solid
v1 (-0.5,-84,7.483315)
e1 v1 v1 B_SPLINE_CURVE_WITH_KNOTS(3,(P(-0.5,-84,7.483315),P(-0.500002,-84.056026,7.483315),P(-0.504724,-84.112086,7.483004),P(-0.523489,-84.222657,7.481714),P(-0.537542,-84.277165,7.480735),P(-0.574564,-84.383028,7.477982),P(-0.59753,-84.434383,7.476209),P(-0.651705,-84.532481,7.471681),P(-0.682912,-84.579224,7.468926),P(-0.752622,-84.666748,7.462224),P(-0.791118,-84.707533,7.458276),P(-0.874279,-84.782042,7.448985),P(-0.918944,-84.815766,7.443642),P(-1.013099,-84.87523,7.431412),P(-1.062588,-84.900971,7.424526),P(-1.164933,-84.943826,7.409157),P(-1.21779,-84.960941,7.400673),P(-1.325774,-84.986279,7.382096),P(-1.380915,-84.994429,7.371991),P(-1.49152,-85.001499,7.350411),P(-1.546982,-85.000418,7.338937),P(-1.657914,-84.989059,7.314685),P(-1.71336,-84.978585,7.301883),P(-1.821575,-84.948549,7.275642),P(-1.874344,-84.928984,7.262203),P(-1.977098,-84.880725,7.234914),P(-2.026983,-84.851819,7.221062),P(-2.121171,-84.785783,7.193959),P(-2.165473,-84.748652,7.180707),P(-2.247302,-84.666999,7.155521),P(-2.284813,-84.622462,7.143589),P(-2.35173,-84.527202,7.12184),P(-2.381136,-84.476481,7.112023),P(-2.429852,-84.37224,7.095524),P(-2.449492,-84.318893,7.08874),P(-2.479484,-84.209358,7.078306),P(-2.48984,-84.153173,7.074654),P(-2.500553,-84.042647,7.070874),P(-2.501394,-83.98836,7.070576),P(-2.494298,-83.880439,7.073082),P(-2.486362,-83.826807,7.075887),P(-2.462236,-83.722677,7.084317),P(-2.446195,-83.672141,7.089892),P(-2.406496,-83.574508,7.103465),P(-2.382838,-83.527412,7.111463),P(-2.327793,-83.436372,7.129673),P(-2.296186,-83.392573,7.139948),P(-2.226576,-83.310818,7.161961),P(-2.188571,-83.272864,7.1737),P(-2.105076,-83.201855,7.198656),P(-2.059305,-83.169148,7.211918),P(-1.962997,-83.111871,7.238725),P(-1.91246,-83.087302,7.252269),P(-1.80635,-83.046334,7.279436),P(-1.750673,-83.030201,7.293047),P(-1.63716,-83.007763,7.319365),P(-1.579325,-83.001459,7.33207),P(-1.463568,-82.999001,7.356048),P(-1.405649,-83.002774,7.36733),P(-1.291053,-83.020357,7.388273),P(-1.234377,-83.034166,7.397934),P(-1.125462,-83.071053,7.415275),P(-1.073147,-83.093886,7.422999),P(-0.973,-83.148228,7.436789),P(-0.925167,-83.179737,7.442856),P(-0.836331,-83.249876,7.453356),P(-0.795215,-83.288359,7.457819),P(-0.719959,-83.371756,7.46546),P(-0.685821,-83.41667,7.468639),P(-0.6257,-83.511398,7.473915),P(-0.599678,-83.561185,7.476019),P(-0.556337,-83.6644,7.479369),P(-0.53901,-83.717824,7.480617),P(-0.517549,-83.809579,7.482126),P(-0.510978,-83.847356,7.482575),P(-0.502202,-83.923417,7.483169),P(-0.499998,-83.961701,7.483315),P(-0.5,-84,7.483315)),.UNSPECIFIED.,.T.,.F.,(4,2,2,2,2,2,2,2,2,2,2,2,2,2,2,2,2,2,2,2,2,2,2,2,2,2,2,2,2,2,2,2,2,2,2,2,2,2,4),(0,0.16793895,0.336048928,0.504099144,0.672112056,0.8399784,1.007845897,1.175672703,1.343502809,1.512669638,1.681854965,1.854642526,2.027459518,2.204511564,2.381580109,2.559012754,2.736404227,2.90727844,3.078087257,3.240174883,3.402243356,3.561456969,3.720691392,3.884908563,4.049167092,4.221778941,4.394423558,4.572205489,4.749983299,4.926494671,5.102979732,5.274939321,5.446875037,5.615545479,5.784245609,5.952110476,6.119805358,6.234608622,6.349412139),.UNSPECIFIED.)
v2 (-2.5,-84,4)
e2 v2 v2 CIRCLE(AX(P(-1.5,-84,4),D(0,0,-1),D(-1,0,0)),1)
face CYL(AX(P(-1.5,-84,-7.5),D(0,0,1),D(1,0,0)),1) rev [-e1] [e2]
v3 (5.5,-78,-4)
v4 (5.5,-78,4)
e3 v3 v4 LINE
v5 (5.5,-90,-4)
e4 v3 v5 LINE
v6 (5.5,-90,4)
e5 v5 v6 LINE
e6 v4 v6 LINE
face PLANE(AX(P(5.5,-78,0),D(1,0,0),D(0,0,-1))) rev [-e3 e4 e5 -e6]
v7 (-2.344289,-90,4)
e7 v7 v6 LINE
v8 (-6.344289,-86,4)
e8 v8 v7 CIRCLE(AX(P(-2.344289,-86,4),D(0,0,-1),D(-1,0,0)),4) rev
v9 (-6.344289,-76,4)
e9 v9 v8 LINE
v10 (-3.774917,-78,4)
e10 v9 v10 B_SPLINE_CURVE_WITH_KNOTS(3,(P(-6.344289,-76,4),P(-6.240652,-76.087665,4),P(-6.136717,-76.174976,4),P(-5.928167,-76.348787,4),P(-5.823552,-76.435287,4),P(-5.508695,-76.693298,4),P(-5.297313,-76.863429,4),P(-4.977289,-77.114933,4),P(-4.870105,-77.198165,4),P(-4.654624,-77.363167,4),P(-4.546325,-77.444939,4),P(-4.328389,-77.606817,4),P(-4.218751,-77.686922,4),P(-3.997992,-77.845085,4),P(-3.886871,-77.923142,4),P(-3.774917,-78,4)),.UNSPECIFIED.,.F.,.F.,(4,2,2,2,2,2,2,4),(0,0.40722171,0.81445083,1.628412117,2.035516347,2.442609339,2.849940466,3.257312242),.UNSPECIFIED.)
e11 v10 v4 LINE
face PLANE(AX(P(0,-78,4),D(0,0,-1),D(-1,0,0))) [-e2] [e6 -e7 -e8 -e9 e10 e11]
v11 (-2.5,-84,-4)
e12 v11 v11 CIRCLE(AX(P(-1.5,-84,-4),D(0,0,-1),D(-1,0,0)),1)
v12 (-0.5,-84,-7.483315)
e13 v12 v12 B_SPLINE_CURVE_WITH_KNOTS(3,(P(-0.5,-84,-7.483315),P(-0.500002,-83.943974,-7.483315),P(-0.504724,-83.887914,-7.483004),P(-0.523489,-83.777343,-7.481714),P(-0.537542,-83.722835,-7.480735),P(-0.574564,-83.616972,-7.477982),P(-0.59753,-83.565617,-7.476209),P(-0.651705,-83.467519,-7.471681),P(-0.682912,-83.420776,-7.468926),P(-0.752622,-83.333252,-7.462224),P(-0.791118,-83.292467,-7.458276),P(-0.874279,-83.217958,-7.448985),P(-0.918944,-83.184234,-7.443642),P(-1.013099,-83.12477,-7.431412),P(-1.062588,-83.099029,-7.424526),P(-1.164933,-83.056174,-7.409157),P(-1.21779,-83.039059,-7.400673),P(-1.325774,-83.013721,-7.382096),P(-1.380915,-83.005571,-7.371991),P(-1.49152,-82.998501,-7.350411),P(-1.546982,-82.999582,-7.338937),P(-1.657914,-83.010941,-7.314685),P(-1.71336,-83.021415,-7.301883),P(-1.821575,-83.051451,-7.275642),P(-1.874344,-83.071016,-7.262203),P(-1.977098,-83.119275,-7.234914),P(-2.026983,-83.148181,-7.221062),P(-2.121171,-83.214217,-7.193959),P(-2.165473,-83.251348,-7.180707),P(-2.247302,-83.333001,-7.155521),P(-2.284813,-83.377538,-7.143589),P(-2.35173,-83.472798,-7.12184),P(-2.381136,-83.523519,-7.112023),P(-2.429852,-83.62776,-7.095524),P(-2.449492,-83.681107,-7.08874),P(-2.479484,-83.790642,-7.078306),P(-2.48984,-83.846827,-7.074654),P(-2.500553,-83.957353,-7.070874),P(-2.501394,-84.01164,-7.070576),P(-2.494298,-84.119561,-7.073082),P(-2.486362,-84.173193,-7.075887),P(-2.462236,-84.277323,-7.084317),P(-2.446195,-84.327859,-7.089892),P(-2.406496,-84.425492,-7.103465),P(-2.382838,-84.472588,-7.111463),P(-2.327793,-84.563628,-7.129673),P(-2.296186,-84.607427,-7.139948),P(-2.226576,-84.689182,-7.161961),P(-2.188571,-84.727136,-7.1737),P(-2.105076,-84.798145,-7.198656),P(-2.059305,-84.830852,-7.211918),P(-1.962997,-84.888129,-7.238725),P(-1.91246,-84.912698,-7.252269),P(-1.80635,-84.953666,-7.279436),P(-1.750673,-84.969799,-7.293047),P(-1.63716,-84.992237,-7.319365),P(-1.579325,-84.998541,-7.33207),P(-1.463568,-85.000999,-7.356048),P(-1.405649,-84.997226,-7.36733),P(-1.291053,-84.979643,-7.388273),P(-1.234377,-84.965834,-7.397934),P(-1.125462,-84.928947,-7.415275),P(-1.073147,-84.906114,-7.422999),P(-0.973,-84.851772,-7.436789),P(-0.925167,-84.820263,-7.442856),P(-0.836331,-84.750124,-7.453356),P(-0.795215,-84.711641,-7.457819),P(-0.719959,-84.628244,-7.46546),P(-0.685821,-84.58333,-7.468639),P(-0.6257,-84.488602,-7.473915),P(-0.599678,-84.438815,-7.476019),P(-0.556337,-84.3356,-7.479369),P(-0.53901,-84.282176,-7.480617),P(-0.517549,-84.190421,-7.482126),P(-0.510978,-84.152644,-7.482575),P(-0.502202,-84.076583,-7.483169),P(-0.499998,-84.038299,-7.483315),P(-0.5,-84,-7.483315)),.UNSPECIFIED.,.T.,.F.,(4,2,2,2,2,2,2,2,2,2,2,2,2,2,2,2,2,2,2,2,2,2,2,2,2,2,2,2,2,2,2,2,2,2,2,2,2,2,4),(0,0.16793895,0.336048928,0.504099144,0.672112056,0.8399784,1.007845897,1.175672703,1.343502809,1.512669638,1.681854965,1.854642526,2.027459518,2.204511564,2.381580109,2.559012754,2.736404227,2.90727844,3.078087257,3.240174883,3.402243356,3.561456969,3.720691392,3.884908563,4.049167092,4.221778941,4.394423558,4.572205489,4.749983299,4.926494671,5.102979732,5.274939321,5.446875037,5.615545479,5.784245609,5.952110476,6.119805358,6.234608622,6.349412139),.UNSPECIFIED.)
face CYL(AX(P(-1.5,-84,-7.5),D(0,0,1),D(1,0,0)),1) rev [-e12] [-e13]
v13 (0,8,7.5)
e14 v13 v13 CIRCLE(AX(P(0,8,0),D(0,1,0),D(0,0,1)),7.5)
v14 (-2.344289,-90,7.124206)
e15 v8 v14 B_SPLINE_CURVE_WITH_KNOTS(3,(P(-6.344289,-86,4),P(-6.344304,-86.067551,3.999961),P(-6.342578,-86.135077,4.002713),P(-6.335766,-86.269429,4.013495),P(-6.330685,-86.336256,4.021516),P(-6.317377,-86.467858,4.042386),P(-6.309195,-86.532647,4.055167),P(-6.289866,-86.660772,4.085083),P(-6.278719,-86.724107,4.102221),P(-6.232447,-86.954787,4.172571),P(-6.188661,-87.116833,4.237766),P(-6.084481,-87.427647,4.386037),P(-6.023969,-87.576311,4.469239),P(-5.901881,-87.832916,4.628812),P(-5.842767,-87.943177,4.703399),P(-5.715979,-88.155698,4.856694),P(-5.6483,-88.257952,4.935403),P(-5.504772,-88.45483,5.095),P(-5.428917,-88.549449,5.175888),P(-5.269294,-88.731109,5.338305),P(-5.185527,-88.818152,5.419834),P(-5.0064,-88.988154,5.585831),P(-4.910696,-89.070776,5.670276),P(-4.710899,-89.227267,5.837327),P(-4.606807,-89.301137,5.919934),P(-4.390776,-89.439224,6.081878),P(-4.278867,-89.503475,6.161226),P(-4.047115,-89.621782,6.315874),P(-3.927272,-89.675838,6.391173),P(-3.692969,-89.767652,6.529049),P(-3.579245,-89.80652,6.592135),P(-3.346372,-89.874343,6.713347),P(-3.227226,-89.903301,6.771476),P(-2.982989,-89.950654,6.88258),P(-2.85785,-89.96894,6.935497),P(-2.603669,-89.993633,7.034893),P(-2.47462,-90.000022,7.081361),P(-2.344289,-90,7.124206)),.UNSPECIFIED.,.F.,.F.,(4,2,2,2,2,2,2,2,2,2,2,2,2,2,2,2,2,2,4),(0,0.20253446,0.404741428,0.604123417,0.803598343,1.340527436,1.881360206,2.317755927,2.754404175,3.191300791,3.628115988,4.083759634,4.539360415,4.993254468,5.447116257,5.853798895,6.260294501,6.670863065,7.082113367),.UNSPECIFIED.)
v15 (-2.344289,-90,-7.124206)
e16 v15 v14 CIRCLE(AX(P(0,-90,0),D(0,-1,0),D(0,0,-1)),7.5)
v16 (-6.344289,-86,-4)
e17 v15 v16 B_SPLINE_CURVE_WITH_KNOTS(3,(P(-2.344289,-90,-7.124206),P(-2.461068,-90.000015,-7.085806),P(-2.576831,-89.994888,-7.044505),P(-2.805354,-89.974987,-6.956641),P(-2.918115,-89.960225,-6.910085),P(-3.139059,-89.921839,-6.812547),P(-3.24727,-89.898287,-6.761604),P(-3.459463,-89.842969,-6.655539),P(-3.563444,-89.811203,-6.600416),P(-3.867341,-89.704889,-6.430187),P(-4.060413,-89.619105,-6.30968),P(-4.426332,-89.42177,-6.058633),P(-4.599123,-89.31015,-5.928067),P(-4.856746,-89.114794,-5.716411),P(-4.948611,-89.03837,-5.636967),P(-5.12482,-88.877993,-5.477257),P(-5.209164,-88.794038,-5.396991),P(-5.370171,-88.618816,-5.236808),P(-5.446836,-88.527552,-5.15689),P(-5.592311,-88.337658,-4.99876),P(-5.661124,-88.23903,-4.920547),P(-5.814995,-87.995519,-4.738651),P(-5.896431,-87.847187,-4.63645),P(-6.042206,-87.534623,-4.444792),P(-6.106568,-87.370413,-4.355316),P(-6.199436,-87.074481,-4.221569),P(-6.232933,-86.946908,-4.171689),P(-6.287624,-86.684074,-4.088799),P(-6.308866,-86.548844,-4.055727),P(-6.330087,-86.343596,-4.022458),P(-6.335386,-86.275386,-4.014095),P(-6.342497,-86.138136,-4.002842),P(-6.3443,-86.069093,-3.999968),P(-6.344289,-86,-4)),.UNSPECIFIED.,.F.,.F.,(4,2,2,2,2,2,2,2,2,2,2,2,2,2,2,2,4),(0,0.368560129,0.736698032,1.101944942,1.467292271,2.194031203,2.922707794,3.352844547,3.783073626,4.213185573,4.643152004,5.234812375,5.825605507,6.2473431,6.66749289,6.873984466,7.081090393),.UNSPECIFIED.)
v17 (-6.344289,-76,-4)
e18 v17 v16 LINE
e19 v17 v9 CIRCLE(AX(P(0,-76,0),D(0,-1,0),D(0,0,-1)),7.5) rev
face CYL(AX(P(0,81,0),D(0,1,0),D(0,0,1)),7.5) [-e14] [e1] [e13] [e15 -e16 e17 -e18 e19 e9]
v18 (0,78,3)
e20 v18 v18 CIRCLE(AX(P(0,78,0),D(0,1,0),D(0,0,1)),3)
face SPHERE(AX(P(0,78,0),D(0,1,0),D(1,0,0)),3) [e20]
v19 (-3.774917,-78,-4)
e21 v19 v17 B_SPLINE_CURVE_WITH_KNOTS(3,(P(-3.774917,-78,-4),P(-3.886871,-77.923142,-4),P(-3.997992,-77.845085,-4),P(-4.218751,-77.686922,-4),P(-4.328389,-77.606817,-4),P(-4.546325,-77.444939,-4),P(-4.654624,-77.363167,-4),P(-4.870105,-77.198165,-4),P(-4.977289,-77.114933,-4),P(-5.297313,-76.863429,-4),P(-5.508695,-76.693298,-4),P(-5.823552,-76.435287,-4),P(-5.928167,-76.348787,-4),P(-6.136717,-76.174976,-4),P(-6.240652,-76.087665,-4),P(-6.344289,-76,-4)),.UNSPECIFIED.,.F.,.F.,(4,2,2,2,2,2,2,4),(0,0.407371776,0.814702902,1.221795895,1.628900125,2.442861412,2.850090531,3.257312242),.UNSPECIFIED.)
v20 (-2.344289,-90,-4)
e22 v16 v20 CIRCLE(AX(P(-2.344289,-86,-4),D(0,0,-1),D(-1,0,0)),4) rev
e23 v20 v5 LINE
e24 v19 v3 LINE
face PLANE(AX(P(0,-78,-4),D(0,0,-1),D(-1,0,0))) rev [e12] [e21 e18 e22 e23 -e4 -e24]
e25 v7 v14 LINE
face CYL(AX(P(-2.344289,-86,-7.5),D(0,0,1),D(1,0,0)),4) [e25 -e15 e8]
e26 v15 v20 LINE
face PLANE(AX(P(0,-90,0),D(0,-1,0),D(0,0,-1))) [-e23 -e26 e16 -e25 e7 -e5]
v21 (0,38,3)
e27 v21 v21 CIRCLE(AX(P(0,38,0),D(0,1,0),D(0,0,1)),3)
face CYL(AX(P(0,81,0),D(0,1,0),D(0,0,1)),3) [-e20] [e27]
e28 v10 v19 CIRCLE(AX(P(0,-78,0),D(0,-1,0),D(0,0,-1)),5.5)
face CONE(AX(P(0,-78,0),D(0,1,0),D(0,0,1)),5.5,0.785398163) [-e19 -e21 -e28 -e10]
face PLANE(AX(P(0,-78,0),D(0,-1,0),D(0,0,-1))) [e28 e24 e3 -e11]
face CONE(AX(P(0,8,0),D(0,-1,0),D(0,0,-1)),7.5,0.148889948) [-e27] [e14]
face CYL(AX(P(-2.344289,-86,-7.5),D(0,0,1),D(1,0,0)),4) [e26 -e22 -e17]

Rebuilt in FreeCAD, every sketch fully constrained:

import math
import FreeCAD as App
import Part
import Sketcher
Q = App.Units.Quantity


def edges_at(feature, points):
    """Names of the edges that pass closest to the given points."""
    edges = feature.Shape.Edges
    near = lambda p: min(range(len(edges)), key=lambda i: edges[i].distToShape(Part.Vertex(*p))[0])
    return sorted({f"Edge{near(p) + 1}" for p in points})

doc = App.newDocument("Part")
body = doc.addObject("PartDesign::Body", "Body")

# Sketch on XY plane
sketch1 = body.newObject("Sketcher::SketchObject", "Sketch")
sketch1.AttachmentSupport = (doc.getObject("XY_Plane"), [""])
sketch1.MapMode = "FlatFace"
sketch1.addGeometry([
    Part.LineSegment(App.Vector(7.5, -72, 0), App.Vector(7.5, 8, 0)),  # 0
    Part.LineSegment(App.Vector(7.5, 8, 0), App.Vector(3, 38, 0)),  # 1
    Part.LineSegment(App.Vector(3, 38, 0), App.Vector(3, 78, 0)),  # 2
    Part.ArcOfCircle(Part.Circle(App.Vector(0, 78, 0), App.Vector(0, 0, 1), 3), math.radians(0), math.radians(90)),  # 3
    Part.LineSegment(App.Vector(0, 81, 0), App.Vector(0, -72, 0)),  # 4
    Part.LineSegment(App.Vector(0, -72, 0), App.Vector(7.5, -72, 0)),  # 5
], False)
sketch1.addConstraint([
    Sketcher.Constraint("Coincident", 0, 2, 1, 1),
    Sketcher.Constraint("Coincident", 1, 2, 2, 1),
    Sketcher.Constraint("Tangent", 2, 2, 3, 1),
    Sketcher.Constraint("Coincident", 3, 2, 4, 1),
    Sketcher.Constraint("Coincident", 4, 2, 5, 1),
    Sketcher.Constraint("Coincident", 5, 2, 0, 1),
    Sketcher.Constraint("Vertical", 0),
    Sketcher.Constraint("Vertical", 2),
    Sketcher.Constraint("Vertical", 4),
    Sketcher.Constraint("Horizontal", 5),
    Sketcher.Constraint("PointOnObject", 3, 3, -2),
    Sketcher.Constraint("PointOnObject", 3, 2, -2),
    Sketcher.Constraint("Radius", 3, Q("3 mm")),
    Sketcher.Constraint("DistanceY", 0, 1, 0, 2, Q("80 mm")),
    Sketcher.Constraint("DistanceY", 2, 1, 2, 2, Q("40 mm")),
    Sketcher.Constraint("DistanceY", 4, 2, 4, 1, Q("153 mm")),
    Sketcher.Constraint("DistanceX", 5, 1, 5, 2, Q("7.5 mm")),
    Sketcher.Constraint("DistanceY", -1, 1, 3, 3, Q("78 mm")),
])
revolution = body.newObject("PartDesign::Revolution", "Revolution")
revolution.Profile = sketch1
revolution.ReferenceAxis = (sketch1, ["V_Axis"])
revolution.Angle = 360

# Sketch on XZ plane
sketch2 = body.newObject("Sketcher::SketchObject", "Sketch001")
sketch2.AttachmentSupport = (doc.getObject("XZ_Plane"), [""])
sketch2.MapMode = "FlatFace"
sketch2.AttachmentOffset = App.Placement(App.Vector(0, 0, 72), App.Rotation())
sketch2.addGeometry(Part.Circle(App.Vector(0, 0, 0), App.Vector(0, 0, 1), 8), False)
sketch2.addConstraint([
    Sketcher.Constraint("Coincident", 0, 3, -1, 1),
    Sketcher.Constraint("Diameter", 0, Q("15 mm")),
])
pad1 = body.newObject("PartDesign::Pad", "Pad")
pad1.Profile = sketch2
pad1.Length = 18

# Sketch on XZ plane
sketch3 = body.newObject("Sketcher::SketchObject", "Sketch002")
sketch3.AttachmentSupport = (doc.getObject("XZ_Plane"), [""])
sketch3.MapMode = "FlatFace"
sketch3.AttachmentOffset = App.Placement(App.Vector(0, 0, 78), App.Rotation())
sketch3.addGeometry([
    Part.LineSegment(App.Vector(6, 4, 0), App.Vector(-6, 4, 0)),
    Part.ArcOfCircle(Part.Circle(App.Vector(0, 0, 0), App.Vector(0, 0, 1), 7), math.radians(148), math.radians(212)),
    Part.LineSegment(App.Vector(-6, -4, 0), App.Vector(6, -4, 0)),
    Part.LineSegment(App.Vector(6, -4, 0), App.Vector(6, 4, 0)),
], False)
sketch3.addConstraint([
    Sketcher.Constraint("Coincident", 0, 2, 1, 1),
    Sketcher.Constraint("Coincident", 1, 2, 2, 1),
    Sketcher.Constraint("Coincident", 2, 2, 3, 1),
    Sketcher.Constraint("Coincident", 3, 2, 0, 1),
    Sketcher.Constraint("Horizontal", 0),
    Sketcher.Constraint("Horizontal", 2),
    Sketcher.Constraint("Vertical", 3),
    Sketcher.Constraint("Coincident", 1, 3, -1, 1),
    Sketcher.Constraint("Vertical", 0, 2, 1, 2),
    Sketcher.Constraint("Radius", 1, Q("7.5 mm")),
    Sketcher.Constraint("DistanceY", 3, 1, 3, 2, Q("8 mm")),
    Sketcher.Constraint("DistanceX", -1, 1, 2, 2, Q("5.5 mm")),
])
pocket1 = body.newObject("PartDesign::Pocket", "Pocket")
pocket1.Profile = sketch3
pocket1.Length = 12
pocket1.Reversed = True
doc.recompute()

chamfer = body.newObject("PartDesign::Chamfer", "Chamfer")
chamfer.Base = (pocket1, edges_at(pocket1, [(-7.5, -78, 0)]))
chamfer.Size = 2

# Sketch on XY plane
sketch4 = body.newObject("Sketcher::SketchObject", "Sketch003")
sketch4.AttachmentSupport = (doc.getObject("XY_Plane"), [""])
sketch4.MapMode = "FlatFace"
sketch4.AttachmentOffset = App.Placement(App.Vector(0, 0, -4), App.Rotation())
sketch4.addGeometry([
    Part.LineSegment(App.Vector(-6.3, -86, 0), App.Vector(-6.3, -90, 0)),
    Part.LineSegment(App.Vector(-6.3, -90, 0), App.Vector(-2.3, -90, 0)),
    Part.ArcOfCircle(Part.Circle(App.Vector(-2.3, -86, 0), App.Vector(0, 0, 1), 4), math.radians(180), math.radians(270)),
], False)
sketch4.addConstraint([
    Sketcher.Constraint("Coincident", 0, 2, 1, 1),
    Sketcher.Constraint("Tangent", 1, 2, 2, 2),
    Sketcher.Constraint("Tangent", 2, 1, 0, 1),
    Sketcher.Constraint("Vertical", 0),
    Sketcher.Constraint("Horizontal", 1),
    Sketcher.Constraint("Radius", 2, Q("4 mm")),
    Sketcher.Constraint("DistanceY", 2, 3, -1, 1, Q("86 mm")),
    Sketcher.Constraint("DistanceX", 2, 3, -1, 1, Q("2.344289 mm")),
])
pocket2 = body.newObject("PartDesign::Pocket", "Pocket001")
pocket2.Profile = sketch4
pocket2.Type = "ThroughAll"
pocket2.Midplane = True

# Sketch on XY plane
sketch5 = body.newObject("Sketcher::SketchObject", "Sketch004")
sketch5.AttachmentSupport = (doc.getObject("XY_Plane"), [""])
sketch5.MapMode = "FlatFace"
sketch5.AttachmentOffset = App.Placement(App.Vector(0, 0, -4), App.Rotation())
sketch5.addGeometry(Part.Circle(App.Vector(-1.5, -84, 0), App.Vector(0, 0, 1), 1), False)
sketch5.addConstraint([
    Sketcher.Constraint("Diameter", 0, Q("2 mm")),
    Sketcher.Constraint("DistanceY", 0, 3, -1, 1, Q("84 mm")),
    Sketcher.Constraint("DistanceX", 0, 3, -1, 1, Q("1.5 mm")),
])
pocket3 = body.newObject("PartDesign::Pocket", "Pocket002")
pocket3.Profile = sketch5
pocket3.Type = "ThroughAll"
pocket3.Midplane = True

doc.recompute()
